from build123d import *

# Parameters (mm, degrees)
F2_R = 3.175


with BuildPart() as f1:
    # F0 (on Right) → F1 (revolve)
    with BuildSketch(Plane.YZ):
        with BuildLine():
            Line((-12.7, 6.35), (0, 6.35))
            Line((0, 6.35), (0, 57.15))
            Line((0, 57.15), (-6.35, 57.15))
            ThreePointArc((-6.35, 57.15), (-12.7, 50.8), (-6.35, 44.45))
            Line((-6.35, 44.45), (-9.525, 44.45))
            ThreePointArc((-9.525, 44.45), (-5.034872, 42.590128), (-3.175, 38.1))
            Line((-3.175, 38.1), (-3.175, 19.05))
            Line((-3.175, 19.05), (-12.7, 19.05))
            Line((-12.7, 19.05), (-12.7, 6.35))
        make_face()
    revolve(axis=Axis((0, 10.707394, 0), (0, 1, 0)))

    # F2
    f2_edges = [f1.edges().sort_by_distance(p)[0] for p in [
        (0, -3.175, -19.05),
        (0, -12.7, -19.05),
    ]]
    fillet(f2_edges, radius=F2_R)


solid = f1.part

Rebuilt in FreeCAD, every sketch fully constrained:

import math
import FreeCAD as App
import Part
import Sketcher
from FreeCAD import Vector
Q = App.Units.Quantity


def edges_at(feature, points):
    """Names of the edges that pass closest to the given points."""
    edges = feature.Shape.Edges
    near = lambda p: min(range(len(edges)), key=lambda i: edges[i].distToShape(Part.Vertex(*p))[0])
    return sorted({f"Edge{near(p) + 1}" for p in points})

doc = App.newDocument("Part")
body = doc.addObject("PartDesign::Body", "Body")

sketch1 = body.newObject("Sketcher::SketchObject", "Sketch")
sketch1.AttachmentSupport = (doc.getObject("YZ_Plane"), [""])
sketch1.MapMode = "FlatFace"
sketch1.addGeometry([
    Part.LineSegment(Vector(-12.7, 6.3, 0), Vector(0, 6.3, 0)),
    Part.LineSegment(Vector(0, 6.3, 0), Vector(0, 57.1, 0)),
    Part.LineSegment(Vector(0, 57.1, 0), Vector(-6.3, 57.1, 0)),
    Part.ArcOfCircle(Part.Circle(Vector(-6.3, 50.8, 0), Vector(0, 0, 1), 6.3), math.radians(90), math.radians(270)),
    Part.LineSegment(Vector(-6.3, 44.5, 0), Vector(-9.5, 44.5, 0)),
    Part.ArcOfCircle(Part.Circle(Vector(-9.5, 38.1, 0), Vector(0, 0, 1), 6.4), math.radians(0), math.radians(90)),
    Part.LineSegment(Vector(-3.2, 38.1, 0), Vector(-3.2, 19.1, 0)),
    Part.LineSegment(Vector(-3.2, 19.1, 0), Vector(-12.7, 19.1, 0)),
    Part.LineSegment(Vector(-12.7, 19.1, 0), Vector(-12.7, 6.3, 0)),
], False)
sketch1.addConstraint([
    Sketcher.Constraint("Coincident", 0, 2, 1, 1),
    Sketcher.Constraint("Coincident", 1, 2, 2, 1),
    Sketcher.Constraint("Tangent", 2, 2, 3, 1),
    Sketcher.Constraint("Tangent", 3, 2, 4, 1),
    Sketcher.Constraint("Tangent", 4, 2, 5, 2),
    Sketcher.Constraint("Tangent", 5, 1, 6, 1),
    Sketcher.Constraint("Coincident", 6, 2, 7, 1),
    Sketcher.Constraint("Coincident", 7, 2, 8, 1),
    Sketcher.Constraint("Coincident", 8, 2, 0, 1),
    Sketcher.Constraint("Horizontal", 0),
    Sketcher.Constraint("Vertical", 1),
    Sketcher.Constraint("Horizontal", 2),
    Sketcher.Constraint("Horizontal", 4),
    Sketcher.Constraint("Vertical", 6),
    Sketcher.Constraint("Horizontal", 7),
    Sketcher.Constraint("Vertical", 8),
    Sketcher.Constraint("Equal", 3, 5),
    Sketcher.Constraint("PointOnObject", 0, 2, -2),
    Sketcher.Constraint("Equal", 0, 8),
    Sketcher.Constraint("DistanceY", 1, 1, 1, 2, Q("2 in")),
    Sketcher.Constraint("Radius", 3, Q("0.25 in")),
    Sketcher.Constraint("DistanceX", 0, 1, 0, 2, Q("0.5 in")),
    Sketcher.Constraint("DistanceY", -1, 1, 3, 3, Q("2 in")),
    Sketcher.Constraint("DistanceX", 2, 2, 2, 1, Q("0.25 in")),
    Sketcher.Constraint("DistanceX", 4, 2, 4, 1, Q("0.125 in")),
])
revolution = body.newObject("PartDesign::Revolution", "Revolution")
revolution.Profile = sketch1
revolution.ReferenceAxis = (sketch1, ["H_Axis"])
revolution.Angle = 360
doc.recompute()

fillet = body.newObject("PartDesign::Fillet", "Fillet")
fillet.Base = (revolution, edges_at(revolution, [(0, -3.175, -19.05), (0, -12.7, -19.05)]))
fillet.Radius = Q("0.125 in")

doc.recompute()
